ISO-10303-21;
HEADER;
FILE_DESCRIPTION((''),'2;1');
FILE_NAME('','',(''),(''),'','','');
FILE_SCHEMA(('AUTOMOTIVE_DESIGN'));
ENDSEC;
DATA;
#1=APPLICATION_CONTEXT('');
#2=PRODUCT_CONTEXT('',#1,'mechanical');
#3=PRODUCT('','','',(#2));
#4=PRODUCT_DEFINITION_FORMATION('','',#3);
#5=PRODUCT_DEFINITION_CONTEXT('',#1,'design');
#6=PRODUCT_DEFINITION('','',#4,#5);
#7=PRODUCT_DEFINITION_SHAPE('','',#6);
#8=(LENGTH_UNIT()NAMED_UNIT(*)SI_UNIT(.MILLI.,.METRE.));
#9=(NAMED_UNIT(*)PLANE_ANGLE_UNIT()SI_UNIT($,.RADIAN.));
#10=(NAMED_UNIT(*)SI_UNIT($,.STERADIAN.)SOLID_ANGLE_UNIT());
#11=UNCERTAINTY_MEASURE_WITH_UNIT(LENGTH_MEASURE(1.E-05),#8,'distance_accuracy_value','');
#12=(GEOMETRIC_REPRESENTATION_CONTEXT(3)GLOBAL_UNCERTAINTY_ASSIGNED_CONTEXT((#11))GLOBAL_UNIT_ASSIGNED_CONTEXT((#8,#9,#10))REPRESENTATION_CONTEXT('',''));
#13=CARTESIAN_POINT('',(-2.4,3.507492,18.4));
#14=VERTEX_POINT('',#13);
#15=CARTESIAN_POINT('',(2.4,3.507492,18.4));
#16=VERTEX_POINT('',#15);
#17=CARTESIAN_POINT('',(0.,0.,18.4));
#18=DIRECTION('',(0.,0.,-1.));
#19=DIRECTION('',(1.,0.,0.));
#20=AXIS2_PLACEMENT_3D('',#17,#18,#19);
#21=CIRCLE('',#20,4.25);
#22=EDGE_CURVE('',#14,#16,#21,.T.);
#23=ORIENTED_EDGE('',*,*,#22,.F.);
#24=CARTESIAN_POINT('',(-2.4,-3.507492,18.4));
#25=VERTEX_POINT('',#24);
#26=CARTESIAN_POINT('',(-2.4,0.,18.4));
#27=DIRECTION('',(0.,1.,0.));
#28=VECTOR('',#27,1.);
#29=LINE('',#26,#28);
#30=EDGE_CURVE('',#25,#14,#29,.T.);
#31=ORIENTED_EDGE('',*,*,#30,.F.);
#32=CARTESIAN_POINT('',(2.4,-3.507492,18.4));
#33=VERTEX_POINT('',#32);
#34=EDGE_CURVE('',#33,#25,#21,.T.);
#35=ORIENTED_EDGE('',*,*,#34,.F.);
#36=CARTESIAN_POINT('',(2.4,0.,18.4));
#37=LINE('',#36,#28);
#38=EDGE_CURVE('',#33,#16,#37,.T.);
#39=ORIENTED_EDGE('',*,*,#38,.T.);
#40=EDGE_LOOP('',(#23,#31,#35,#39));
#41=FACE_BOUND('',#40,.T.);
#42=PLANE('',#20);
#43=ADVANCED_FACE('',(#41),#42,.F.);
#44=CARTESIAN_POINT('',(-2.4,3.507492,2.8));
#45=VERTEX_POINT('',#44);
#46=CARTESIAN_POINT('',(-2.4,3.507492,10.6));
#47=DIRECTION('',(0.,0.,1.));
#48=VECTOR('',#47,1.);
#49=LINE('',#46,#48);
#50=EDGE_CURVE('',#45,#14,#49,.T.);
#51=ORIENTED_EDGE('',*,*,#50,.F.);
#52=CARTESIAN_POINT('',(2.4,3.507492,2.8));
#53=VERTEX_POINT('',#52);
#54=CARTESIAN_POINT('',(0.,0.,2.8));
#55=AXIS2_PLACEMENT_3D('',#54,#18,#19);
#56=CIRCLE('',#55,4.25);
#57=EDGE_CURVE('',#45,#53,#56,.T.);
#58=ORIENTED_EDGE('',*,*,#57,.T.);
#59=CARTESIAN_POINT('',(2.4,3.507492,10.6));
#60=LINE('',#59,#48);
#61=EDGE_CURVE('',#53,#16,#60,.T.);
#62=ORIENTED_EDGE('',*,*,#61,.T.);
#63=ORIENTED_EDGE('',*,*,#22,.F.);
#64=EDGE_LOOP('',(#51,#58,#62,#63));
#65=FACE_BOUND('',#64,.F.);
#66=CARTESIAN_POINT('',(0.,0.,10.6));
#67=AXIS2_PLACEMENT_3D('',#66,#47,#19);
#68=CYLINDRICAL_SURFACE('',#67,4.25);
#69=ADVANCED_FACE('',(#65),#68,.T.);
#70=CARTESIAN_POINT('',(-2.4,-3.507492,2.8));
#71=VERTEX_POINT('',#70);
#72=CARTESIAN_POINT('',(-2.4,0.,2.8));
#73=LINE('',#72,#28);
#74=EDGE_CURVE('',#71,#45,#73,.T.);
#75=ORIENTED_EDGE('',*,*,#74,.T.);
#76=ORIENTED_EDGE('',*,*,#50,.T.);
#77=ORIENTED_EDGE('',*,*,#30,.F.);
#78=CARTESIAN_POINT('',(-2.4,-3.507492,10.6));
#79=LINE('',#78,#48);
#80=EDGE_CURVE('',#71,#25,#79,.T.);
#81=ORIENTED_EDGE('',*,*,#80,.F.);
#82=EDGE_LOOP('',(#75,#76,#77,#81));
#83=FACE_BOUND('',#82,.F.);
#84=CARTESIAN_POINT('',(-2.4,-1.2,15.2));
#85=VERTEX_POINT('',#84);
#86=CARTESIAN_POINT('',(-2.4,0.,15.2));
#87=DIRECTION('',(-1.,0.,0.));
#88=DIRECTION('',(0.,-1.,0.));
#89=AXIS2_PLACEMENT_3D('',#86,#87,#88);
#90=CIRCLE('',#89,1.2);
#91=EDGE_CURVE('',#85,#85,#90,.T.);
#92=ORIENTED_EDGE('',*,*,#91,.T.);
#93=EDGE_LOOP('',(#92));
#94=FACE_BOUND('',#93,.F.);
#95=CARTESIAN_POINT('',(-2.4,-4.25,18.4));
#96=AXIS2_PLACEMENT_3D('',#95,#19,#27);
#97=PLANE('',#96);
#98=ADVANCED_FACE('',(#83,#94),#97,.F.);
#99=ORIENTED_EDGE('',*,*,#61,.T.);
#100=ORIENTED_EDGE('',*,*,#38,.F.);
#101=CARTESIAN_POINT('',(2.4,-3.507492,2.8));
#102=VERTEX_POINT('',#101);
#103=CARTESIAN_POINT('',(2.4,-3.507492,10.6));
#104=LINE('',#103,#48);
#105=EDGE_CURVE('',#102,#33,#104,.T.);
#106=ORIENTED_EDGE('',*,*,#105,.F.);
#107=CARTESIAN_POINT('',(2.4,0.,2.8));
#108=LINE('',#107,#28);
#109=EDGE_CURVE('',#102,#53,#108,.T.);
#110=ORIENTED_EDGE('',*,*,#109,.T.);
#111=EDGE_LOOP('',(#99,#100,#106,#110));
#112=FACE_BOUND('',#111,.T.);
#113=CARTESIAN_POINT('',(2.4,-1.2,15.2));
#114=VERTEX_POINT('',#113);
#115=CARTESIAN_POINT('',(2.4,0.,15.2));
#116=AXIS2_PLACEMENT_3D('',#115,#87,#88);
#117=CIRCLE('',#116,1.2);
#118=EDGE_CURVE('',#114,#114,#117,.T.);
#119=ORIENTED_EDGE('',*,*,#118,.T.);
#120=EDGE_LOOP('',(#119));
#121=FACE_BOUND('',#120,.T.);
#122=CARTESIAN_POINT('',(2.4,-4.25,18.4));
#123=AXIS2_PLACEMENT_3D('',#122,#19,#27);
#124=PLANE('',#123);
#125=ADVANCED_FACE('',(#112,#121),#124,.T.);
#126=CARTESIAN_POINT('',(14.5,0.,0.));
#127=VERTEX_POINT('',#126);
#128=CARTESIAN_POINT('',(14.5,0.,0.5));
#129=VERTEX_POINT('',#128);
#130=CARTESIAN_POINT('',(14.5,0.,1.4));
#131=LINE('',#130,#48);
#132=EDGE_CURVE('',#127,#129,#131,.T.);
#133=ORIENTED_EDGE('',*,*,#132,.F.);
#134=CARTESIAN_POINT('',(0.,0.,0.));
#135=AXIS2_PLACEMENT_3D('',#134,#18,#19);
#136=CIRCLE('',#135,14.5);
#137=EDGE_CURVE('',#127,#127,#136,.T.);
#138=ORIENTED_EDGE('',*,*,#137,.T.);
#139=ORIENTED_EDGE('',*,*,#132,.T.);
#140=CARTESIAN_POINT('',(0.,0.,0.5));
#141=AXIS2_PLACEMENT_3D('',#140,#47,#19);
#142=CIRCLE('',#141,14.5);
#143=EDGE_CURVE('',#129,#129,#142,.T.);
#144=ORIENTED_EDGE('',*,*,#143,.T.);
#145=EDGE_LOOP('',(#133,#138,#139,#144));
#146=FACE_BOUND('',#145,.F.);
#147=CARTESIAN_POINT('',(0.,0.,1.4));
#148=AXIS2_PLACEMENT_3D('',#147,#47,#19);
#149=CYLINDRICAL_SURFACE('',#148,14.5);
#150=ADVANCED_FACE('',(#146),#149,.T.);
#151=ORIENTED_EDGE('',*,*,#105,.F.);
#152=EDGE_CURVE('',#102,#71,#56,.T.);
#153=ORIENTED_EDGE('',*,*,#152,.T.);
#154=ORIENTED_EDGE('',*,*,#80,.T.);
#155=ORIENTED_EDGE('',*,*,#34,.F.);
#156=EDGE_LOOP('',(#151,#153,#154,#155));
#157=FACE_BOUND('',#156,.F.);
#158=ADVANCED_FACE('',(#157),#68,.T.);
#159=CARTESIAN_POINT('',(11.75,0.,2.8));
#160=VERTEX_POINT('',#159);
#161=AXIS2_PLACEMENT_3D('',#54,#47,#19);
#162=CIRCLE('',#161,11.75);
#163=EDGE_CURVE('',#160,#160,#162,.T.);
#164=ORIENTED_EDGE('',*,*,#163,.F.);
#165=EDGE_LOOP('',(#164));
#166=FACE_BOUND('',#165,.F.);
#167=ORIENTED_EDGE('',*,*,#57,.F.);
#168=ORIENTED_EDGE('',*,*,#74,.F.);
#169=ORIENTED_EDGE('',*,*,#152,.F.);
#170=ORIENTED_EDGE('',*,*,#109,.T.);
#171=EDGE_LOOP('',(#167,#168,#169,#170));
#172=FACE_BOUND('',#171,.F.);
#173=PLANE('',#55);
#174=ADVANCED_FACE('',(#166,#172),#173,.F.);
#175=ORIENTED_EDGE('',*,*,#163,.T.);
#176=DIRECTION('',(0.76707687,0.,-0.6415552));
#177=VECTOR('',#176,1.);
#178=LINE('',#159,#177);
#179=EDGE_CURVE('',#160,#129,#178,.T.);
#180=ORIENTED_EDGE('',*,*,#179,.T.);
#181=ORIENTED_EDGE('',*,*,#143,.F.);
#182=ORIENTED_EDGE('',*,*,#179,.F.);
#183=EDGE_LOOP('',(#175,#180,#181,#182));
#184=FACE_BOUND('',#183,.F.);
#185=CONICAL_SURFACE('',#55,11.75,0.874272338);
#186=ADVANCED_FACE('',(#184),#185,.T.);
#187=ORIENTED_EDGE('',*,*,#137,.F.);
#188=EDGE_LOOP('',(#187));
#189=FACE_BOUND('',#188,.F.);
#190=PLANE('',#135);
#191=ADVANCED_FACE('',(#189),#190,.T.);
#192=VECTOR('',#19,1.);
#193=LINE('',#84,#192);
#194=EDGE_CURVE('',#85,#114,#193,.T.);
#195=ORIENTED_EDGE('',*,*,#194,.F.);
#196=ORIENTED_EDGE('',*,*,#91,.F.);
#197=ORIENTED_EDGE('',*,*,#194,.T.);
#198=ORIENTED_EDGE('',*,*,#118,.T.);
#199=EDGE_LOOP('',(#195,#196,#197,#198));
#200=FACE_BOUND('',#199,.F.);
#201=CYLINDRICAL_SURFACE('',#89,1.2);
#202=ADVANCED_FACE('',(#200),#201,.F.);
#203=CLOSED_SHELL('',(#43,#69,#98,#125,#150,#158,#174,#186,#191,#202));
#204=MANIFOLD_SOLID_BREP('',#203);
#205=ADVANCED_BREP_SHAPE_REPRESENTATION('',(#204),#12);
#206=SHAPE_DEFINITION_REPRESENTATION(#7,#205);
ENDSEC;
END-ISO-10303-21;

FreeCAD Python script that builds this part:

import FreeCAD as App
import Part
import Sketcher
from FreeCAD import Vector
Q = App.Units.Quantity


def add_polygon(sketch, points):
    """Adds a closed chain of lines whose ends are joined by coincident constraints."""
    first, n = sketch.GeometryCount, len(points)
    for a, b in zip(points, points[1:] + points[:1]):
        sketch.addGeometry(Part.LineSegment(App.Vector(*a, 0), App.Vector(*b, 0)), False)
    for i in range(n):
        sketch.addConstraint(Sketcher.Constraint("Coincident", first + i, 2, first + (i + 1) % n, 1))

doc = App.newDocument("Part")
body = doc.addObject("PartDesign::Body", "Body")

sketch1 = doc.addObject("Sketcher::SketchObject", "Sketch")
body.addObject(sketch1)
sketch1.AttachmentSupport = (doc.XZ_Plane, [""])
sketch1.MapMode = "FlatFace"
add_polygon(sketch1, [(0, 0), (14.5, 0), (14.5, 2.8), (4.25, 2.8), (4.25, 18.4), (0, 18.4)])
sketch1.addConstraint([
    Sketcher.Constraint("Horizontal", 0),
    Sketcher.Constraint("Vertical", 1),
    Sketcher.Constraint("Horizontal", 2),
    Sketcher.Constraint("Vertical", 3),
    Sketcher.Constraint("Horizontal", 4),
    Sketcher.Constraint("Vertical", 5),
    Sketcher.Constraint("Coincident", 5, 2, -1, 1),
    Sketcher.Constraint("DistanceX", 0, 1, 0, 2, Q("14.5 mm")),
    Sketcher.Constraint("DistanceY", 1, 1, 1, 2, Q("2.8 mm")),
    Sketcher.Constraint("DistanceY", 3, 1, 3, 2, Q("15.6 mm")),
    Sketcher.Constraint("DistanceX", 2, 2, 2, 1, Q("10.25 mm")),
])
revolution = doc.addObject("PartDesign::Revolution", "Revolution")
body.addObject(revolution)
revolution.Profile = sketch1
revolution.ReferenceAxis = (sketch1, ["V_Axis"])
revolution.Angle = 360

sketch2 = doc.addObject("Sketcher::SketchObject", "Sketch001")
body.addObject(sketch2)
sketch2.AttachmentSupport = (doc.XZ_Plane, [""])
sketch2.MapMode = "FlatFace"
add_polygon(sketch2, [(14.5, 2.8), (11.75, 2.8), (14.5, 0.5)])
sketch2.addConstraint([
    Sketcher.Constraint("Horizontal", 0),
    Sketcher.Constraint("Vertical", 2),
    Sketcher.Constraint("DistanceY", 2, 1, 2, 2, Q("2.3 mm")),
    Sketcher.Constraint("DistanceX", 0, 2, 0, 1, Q("2.75 mm")),
    Sketcher.Constraint("DistanceY", -1, 1, 0, 2, Q("2.8 mm")),
    Sketcher.Constraint("DistanceX", -1, 1, 1, 2, Q("14.5 mm")),
])
groove = doc.addObject("PartDesign::Groove", "Groove")
body.addObject(groove)
groove.Profile = sketch2
groove.ReferenceAxis = (sketch2, ["V_Axis"])
groove.Angle = 360

sketch3 = doc.addObject("Sketcher::SketchObject", "Sketch002")
body.addObject(sketch3)
sketch3.AttachmentSupport = (doc.XY_Plane, [""])
sketch3.MapMode = "FlatFace"
sketch3.AttachmentOffset = App.Placement(Vector(0, 0, 18.4), App.Rotation())
add_polygon(sketch3, [(2.4, 4.25), (2.4, -4.25), (7.2, -4.25), (7.2, 4.25)])
add_polygon(sketch3, [(-7.2, 4.25), (-7.2, -4.25), (-2.4, -4.25), (-2.4, 4.25)])
sketch3.addConstraint([
    Sketcher.Constraint("Vertical", 0),
    Sketcher.Constraint("Horizontal", 1),
    Sketcher.Constraint("Vertical", 2),
    Sketcher.Constraint("Horizontal", 3),
    Sketcher.Constraint("Vertical", 4),
    Sketcher.Constraint("Horizontal", 5),
    Sketcher.Constraint("Vertical", 6),
    Sketcher.Constraint("Horizontal", 7),
    Sketcher.Constraint("Symmetric", 2, 2, 4, 2, -1, 1),
    Sketcher.Constraint("Symmetric", 0, 2, 6, 2, -1, 1),
    Sketcher.Constraint("Horizontal", 1, 2, 4, 2),
    Sketcher.Constraint("DistanceX", 1, 1, 1, 2, Q("4.8 mm")),
    Sketcher.Constraint("DistanceY", 0, 2, 0, 1, Q("8.5 mm")),
    Sketcher.Constraint("DistanceX", -1, 1, 0, 2, Q("2.4 mm")),
])
pocket1 = doc.addObject("PartDesign::Pocket", "Pocket")
body.addObject(pocket1)
pocket1.Profile = sketch3
pocket1.Length = 15.6

sketch4 = doc.addObject("Sketcher::SketchObject", "Sketch003")
body.addObject(sketch4)
sketch4.AttachmentSupport = (doc.YZ_Plane, [""])
sketch4.MapMode = "FlatFace"
sketch4.AttachmentOffset = App.Placement(Vector(0, 0, -2.4), App.Rotation())
sketch4.addGeometry(Part.Circle(Vector(0, 15.2, 0), Vector(0, 0, 1), 1.2), False)
sketch4.addConstraint([
    Sketcher.Constraint("PointOnObject", 0, 3, -2),
    Sketcher.Constraint("Diameter", 0, Q("2.4 mm")),
    Sketcher.Constraint("DistanceY", -1, 1, 0, 3, Q("15.2 mm")),
])
pocket2 = doc.addObject("PartDesign::Pocket", "Pocket001")
body.addObject(pocket2)
pocket2.Profile = sketch4
pocket2.Type = "ThroughAll"
pocket2.Reversed = True

doc.recompute()
